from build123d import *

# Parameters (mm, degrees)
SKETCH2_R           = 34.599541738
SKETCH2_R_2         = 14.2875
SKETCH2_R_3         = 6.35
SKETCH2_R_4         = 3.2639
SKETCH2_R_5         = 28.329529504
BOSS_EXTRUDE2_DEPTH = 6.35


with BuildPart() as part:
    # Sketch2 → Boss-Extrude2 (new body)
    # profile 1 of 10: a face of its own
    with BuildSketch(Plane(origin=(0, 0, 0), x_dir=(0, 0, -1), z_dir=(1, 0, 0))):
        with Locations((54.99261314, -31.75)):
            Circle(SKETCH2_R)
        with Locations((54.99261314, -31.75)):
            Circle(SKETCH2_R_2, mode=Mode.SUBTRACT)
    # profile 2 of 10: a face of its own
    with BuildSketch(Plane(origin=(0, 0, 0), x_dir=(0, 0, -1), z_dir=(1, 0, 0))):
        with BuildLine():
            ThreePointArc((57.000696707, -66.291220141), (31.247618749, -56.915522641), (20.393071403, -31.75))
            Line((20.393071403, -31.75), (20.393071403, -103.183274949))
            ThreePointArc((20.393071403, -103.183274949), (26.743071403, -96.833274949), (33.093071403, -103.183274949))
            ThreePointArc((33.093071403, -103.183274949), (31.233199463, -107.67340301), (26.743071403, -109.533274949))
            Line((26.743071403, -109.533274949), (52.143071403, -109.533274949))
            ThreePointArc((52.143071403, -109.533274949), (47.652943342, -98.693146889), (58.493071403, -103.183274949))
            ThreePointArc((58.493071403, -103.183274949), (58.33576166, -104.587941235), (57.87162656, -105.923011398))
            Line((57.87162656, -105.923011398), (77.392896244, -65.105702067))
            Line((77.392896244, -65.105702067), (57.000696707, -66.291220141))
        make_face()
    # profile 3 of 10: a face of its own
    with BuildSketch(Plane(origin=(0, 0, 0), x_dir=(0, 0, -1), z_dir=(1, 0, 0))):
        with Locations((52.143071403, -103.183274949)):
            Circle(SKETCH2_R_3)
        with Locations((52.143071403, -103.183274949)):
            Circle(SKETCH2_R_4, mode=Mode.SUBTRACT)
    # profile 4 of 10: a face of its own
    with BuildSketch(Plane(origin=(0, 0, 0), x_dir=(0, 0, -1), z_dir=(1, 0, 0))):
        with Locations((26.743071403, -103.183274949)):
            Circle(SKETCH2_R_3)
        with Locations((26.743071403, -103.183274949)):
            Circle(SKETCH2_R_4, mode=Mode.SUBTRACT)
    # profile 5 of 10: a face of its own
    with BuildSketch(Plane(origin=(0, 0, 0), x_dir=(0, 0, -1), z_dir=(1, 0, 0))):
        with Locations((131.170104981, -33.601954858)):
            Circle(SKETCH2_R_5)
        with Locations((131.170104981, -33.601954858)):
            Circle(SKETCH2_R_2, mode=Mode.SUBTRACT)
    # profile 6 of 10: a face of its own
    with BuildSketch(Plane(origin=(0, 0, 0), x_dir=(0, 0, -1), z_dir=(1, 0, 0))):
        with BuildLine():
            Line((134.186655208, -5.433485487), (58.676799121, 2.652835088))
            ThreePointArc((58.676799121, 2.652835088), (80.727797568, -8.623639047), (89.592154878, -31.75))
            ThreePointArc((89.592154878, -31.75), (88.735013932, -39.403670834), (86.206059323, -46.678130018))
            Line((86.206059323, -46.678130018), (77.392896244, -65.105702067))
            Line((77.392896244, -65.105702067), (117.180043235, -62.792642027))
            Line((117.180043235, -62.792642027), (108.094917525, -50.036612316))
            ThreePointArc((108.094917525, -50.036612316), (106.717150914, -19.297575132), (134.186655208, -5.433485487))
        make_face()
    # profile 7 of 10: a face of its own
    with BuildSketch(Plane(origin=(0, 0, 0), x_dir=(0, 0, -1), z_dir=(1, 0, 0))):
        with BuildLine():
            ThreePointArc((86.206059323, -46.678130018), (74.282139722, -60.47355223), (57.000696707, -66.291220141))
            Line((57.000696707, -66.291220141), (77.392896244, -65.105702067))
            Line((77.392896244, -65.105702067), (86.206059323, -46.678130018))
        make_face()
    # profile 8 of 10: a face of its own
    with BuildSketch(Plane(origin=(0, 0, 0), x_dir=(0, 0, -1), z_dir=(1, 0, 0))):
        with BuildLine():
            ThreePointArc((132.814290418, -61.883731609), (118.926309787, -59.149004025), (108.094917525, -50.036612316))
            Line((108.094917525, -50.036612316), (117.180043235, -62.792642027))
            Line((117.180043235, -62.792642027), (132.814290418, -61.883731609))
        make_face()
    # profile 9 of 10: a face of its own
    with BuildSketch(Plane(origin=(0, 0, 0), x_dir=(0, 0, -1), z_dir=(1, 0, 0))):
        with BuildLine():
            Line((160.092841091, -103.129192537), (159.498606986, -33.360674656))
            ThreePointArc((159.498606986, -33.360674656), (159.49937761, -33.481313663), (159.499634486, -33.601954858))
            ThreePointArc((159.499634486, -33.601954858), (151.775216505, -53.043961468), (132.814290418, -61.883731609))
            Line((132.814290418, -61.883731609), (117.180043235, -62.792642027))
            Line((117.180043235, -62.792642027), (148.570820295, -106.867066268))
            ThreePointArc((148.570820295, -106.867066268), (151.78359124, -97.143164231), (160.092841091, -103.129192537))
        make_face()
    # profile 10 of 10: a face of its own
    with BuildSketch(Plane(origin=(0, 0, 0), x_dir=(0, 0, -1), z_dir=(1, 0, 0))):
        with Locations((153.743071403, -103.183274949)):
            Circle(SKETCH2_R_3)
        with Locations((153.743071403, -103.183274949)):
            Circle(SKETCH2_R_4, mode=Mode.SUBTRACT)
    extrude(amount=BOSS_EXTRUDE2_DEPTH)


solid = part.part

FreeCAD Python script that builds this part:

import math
import FreeCAD as App
import Part
import Sketcher
from FreeCAD import Vector
Q = App.Units.Quantity

doc = App.newDocument("Part")
body = doc.addObject("PartDesign::Body", "Body")

# Sketch on YZ plane
sketch1 = doc.addObject("Sketcher::SketchObject", "Sketch")
body.addObject(sketch1)
sketch1.AttachmentSupport = (doc.YZ_Plane, [""])
sketch1.MapMode = "FlatFace"
sketch1.addGeometry(Part.ArcOfCircle(Part.Circle(Vector(-31.75, -54.992613, 0), Vector(0, 0, 1), 34.599542), math.radians(-6.112487), math.radians(90)), False)
sketch1.addGeometry(Part.LineSegment(Vector(-31.75, -20.393071, 0), Vector(-103.183275, -20.393071, 0)), False)
sketch1.addGeometry(Part.ArcOfCircle(Part.Circle(Vector(-103.183275, -26.743071, 0), Vector(0, 0, 1), 6.35), math.radians(90), math.radians(180)), False)
sketch1.addGeometry(Part.LineSegment(Vector(-109.533275, -26.743071, 0), Vector(-109.533275, -52.143071, 0)), False)
sketch1.addGeometry(Part.ArcOfCircle(Part.Circle(Vector(-103.183275, -52.143071, 0), Vector(0, 0, 1), 6.35), math.radians(180), math.radians(244.440094)), False)
sketch1.addGeometry(Part.LineSegment(Vector(-105.923011, -57.871627, 0), Vector(-65.105702, -77.392896, 0)), False)
sketch1.addGeometry(Part.LineSegment(Vector(-65.105702, -77.392896, 0), Vector(-62.792642, -117.180043, 0)), False)
sketch1.addGeometry(Part.LineSegment(Vector(-62.792642, -117.180043, 0), Vector(-106.867066, -148.57082, 0)), False)
sketch1.addGeometry(Part.ArcOfCircle(Part.Circle(Vector(-103.183275, -153.743071, 0), Vector(0, 0, 1), 6.35), math.radians(125.459308), math.radians(270.487989)), False)
sketch1.addGeometry(Part.LineSegment(Vector(-103.129193, -160.092841, 0), Vector(-33.360675, -159.498607, 0)), False)
sketch1.addGeometry(Part.ArcOfCircle(Part.Circle(Vector(-33.601955, -131.170105, 0), Vector(0, 0, 1), 28.32953), math.radians(-89.512011), math.radians(-6.112487)), False)
sketch1.addGeometry(Part.LineSegment(Vector(-5.433485, -134.186655, 0), Vector(2.652835, -58.676799, 0)), False)
sketch1.addGeometry(Part.Circle(Vector(-31.75, -54.992613, 0), Vector(0, 0, 1), 14.2875), False)
sketch1.addGeometry(Part.Circle(Vector(-33.601955, -131.170105, 0), Vector(0, 0, 1), 14.2875), False)
sketch1.addGeometry(Part.Circle(Vector(-103.183275, -26.743071, 0), Vector(0, 0, 1), 3.2639), False)
sketch1.addGeometry(Part.Circle(Vector(-103.183275, -52.143071, 0), Vector(0, 0, 1), 3.2639), False)
sketch1.addGeometry(Part.Circle(Vector(-103.183275, -153.743071, 0), Vector(0, 0, 1), 3.2639), False)
sketch1.addConstraint(Sketcher.Constraint("Tangent", 0, 2, 1, 1))
sketch1.addConstraint(Sketcher.Constraint("Tangent", 1, 2, 2, 1))
sketch1.addConstraint(Sketcher.Constraint("Tangent", 2, 2, 3, 1))
sketch1.addConstraint(Sketcher.Constraint("Tangent", 3, 2, 4, 1))
sketch1.addConstraint(Sketcher.Constraint("Tangent", 4, 2, 5, 1))
sketch1.addConstraint(Sketcher.Constraint("Coincident", 5, 2, 6, 1))
sketch1.addConstraint(Sketcher.Constraint("Coincident", 6, 2, 7, 1))
sketch1.addConstraint(Sketcher.Constraint("Tangent", 7, 2, 8, 1))
sketch1.addConstraint(Sketcher.Constraint("Tangent", 8, 2, 9, 1))
sketch1.addConstraint(Sketcher.Constraint("Tangent", 9, 2, 10, 1))
sketch1.addConstraint(Sketcher.Constraint("Tangent", 10, 2, 11, 1))
sketch1.addConstraint(Sketcher.Constraint("Tangent", 11, 2, 0, 1))
sketch1.addConstraint(Sketcher.Constraint("Horizontal", 1))
sketch1.addConstraint(Sketcher.Constraint("Vertical", 3))
sketch1.addConstraint(Sketcher.Constraint("Coincident", 12, 3, 0, 3))
sketch1.addConstraint(Sketcher.Constraint("Coincident", 13, 3, 10, 3))
sketch1.addConstraint(Sketcher.Constraint("Coincident", 14, 3, 2, 3))
sketch1.addConstraint(Sketcher.Constraint("Coincident", 15, 3, 4, 3))
sketch1.addConstraint(Sketcher.Constraint("Coincident", 16, 3, 8, 3))
sketch1.addConstraint(Sketcher.Constraint("Equal", 2, 4))
sketch1.addConstraint(Sketcher.Constraint("Equal", 4, 8))
sketch1.addConstraint(Sketcher.Constraint("Equal", 12, 13))
sketch1.addConstraint(Sketcher.Constraint("Equal", 14, 15))
sketch1.addConstraint(Sketcher.Constraint("Equal", 15, 16))
sketch1.addConstraint(Sketcher.Constraint("Vertical", 4, 3, 8, 3))
sketch1.addConstraint(Sketcher.Constraint("DistanceY", 3, 2, 3, 1, Q("1 in")))
sketch1.addConstraint(Sketcher.Constraint("Radius", 2, Q("0.25 in")))
sketch1.addConstraint(Sketcher.Constraint("Diameter", 12, Q("1.125 in")))
sketch1.addConstraint(Sketcher.Constraint("Diameter", 14, Q("0.257 in")))
sketch1.addConstraint(Sketcher.Constraint("DistanceY", 8, 3, 4, 3, Q("4 in")))
sketch1.addConstraint(Sketcher.Constraint("DistanceX", 0, 3, -1, 1, Q("1.25 in")))
sketch1.addConstraint(Sketcher.Constraint("Radius", 0, Q("34.599542 mm")))
sketch1.addConstraint(Sketcher.Constraint("Radius", 10, Q("28.32953 mm")))
sketch1.addConstraint(Sketcher.Constraint("DistanceX", 5, 2, 10, 2, Q("2.3492999 in")))
sketch1.addConstraint(Sketcher.Constraint("DistanceY", 11, 2, -1, 1, Q("58.676799 mm")))
sketch1.addConstraint(Sketcher.Constraint("DistanceX", 8, 3, 9, 2, Q("69.8226 mm")))
sketch1.addConstraint(Sketcher.Constraint("Distance", 5, Q("45.245251 mm")))
sketch1.addConstraint(Sketcher.Constraint("Distance", 9, Q("69.771048 mm")))
sketch1.addConstraint(Sketcher.Constraint("DistanceX", 1, 2, 1, 1, Q("71.433275 mm")))
sketch1.addConstraint(Sketcher.Constraint("DistanceY", 7, 2, -1, 1, Q("148.57082 mm")))
sketch1.addConstraint(Sketcher.Constraint("DistanceY", 10, 3, 6, 2, Q("13.990062 mm")))
pad1 = doc.addObject("PartDesign::Pad", "Pad")
body.addObject(pad1)
pad1.Profile = sketch1
pad1.Length = Q("0.25 in")

doc.recompute()
